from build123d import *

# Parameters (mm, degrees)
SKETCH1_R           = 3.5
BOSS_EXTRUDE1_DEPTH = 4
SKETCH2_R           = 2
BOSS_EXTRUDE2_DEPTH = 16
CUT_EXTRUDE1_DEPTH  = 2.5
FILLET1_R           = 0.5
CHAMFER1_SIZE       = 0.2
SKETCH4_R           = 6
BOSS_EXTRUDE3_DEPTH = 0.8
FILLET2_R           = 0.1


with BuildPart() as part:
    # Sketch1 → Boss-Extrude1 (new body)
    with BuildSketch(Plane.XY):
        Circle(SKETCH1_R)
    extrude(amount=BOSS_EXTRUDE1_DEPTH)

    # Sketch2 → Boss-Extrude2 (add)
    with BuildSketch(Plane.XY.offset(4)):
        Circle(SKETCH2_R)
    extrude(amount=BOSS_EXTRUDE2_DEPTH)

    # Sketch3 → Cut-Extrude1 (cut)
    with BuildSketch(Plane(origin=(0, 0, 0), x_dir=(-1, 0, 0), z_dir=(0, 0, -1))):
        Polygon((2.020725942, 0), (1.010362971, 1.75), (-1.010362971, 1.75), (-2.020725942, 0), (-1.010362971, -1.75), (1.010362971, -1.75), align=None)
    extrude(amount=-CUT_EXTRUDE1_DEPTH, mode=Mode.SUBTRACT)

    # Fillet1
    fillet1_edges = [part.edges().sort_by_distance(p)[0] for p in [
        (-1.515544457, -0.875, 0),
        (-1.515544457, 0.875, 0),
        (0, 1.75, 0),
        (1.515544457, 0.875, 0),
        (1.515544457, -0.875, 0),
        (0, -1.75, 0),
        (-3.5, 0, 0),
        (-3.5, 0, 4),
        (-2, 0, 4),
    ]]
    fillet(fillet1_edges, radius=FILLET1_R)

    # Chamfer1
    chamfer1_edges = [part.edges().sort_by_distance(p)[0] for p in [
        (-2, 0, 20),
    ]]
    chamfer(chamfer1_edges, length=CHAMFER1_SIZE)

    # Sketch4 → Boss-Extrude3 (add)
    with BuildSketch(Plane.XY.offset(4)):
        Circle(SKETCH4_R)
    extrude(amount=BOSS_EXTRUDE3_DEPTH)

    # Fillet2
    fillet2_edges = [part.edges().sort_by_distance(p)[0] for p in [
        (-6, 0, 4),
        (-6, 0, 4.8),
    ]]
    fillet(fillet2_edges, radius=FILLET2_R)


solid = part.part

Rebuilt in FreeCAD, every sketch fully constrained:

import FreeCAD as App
import Part
import Sketcher
Q = App.Units.Quantity


def edges_at(feature, points):
    """Names of the edges that pass closest to the given points."""
    edges = feature.Shape.Edges
    near = lambda p: min(range(len(edges)), key=lambda i: edges[i].distToShape(Part.Vertex(*p))[0])
    return sorted({f"Edge{near(p) + 1}" for p in points})

doc = App.newDocument("Part")
body = doc.addObject("PartDesign::Body", "Body")

sketch1 = doc.addObject("Sketcher::SketchObject", "Sketch")
body.addObject(sketch1)
sketch1.AttachmentSupport = (doc.XY_Plane, [""])
sketch1.MapMode = "FlatFace"
sketch1.addGeometry(Part.Circle(App.Vector(0, 0, 0), App.Vector(0, 0, 1), 3.5), False)
sketch1.addConstraint([
    Sketcher.Constraint("Coincident", 0, 3, -1, 1),
    Sketcher.Constraint("Diameter", 0, 7.0),
])
pad1 = doc.addObject("PartDesign::Pad", "Pad")
body.addObject(pad1)
pad1.Profile = sketch1
pad1.Length = 4

sketch2 = doc.addObject("Sketcher::SketchObject", "Sketch001")
body.addObject(sketch2)
sketch2.AttachmentSupport = (doc.XY_Plane, [""])
sketch2.MapMode = "FlatFace"
sketch2.AttachmentOffset = App.Placement(App.Vector(0, 0, 4), App.Rotation())
sketch2.addGeometry(Part.Circle(App.Vector(0, 0, 0), App.Vector(0, 0, 1), 2), False)
sketch2.addConstraint([
    Sketcher.Constraint("Coincident", 0, 3, -1, 1),
    Sketcher.Constraint("Diameter", 0, 4.0),
])
pad2 = doc.addObject("PartDesign::Pad", "Pad001")
body.addObject(pad2)
pad2.Profile = sketch2
pad2.Length = 16

sketch3 = doc.addObject("Sketcher::SketchObject", "Sketch002")
body.addObject(sketch3)
sketch3.AttachmentSupport = (doc.XY_Plane, [""])
sketch3.MapMode = "FlatFace"
sketch3.addGeometry([
    Part.LineSegment(App.Vector(-2, 0, 0), App.Vector(-1, 1.8, 0)),
    Part.LineSegment(App.Vector(-1, 1.8, 0), App.Vector(1, 1.8, 0)),
    Part.LineSegment(App.Vector(1, 1.8, 0), App.Vector(2, 0, 0)),
    Part.LineSegment(App.Vector(2, 0, 0), App.Vector(1, -1.8, 0)),
    Part.LineSegment(App.Vector(1, -1.8, 0), App.Vector(-1, -1.8, 0)),
    Part.LineSegment(App.Vector(-1, -1.8, 0), App.Vector(-2, 0, 0)),
], False)
sketch3.addConstraint([
    Sketcher.Constraint("Coincident", 0, 2, 1, 1),
    Sketcher.Constraint("Coincident", 1, 2, 2, 1),
    Sketcher.Constraint("Coincident", 2, 2, 3, 1),
    Sketcher.Constraint("Coincident", 3, 2, 4, 1),
    Sketcher.Constraint("Coincident", 4, 2, 5, 1),
    Sketcher.Constraint("Coincident", 5, 2, 0, 1),
    Sketcher.Constraint("Horizontal", 1),
    Sketcher.Constraint("Horizontal", 4),
    Sketcher.Constraint("Symmetric", 0, 2, 3, 2, -1, 1),
    Sketcher.Constraint("Symmetric", 2, 2, 5, 2, -1, 1),
    Sketcher.Constraint("PointOnObject", 2, 2, -1),
    Sketcher.Constraint("Parallel", 2, 5),
    Sketcher.Constraint("Vertical", 1, 2, 3, 2),
    Sketcher.Constraint("Angle", 0, Q("60 deg")),
    Sketcher.Constraint("DistanceY", 3, 2, 1, 2, 3.5),
    Sketcher.Constraint("DistanceX", 1, 1, 1, 2, 2.020726),
])
pocket1 = doc.addObject("PartDesign::Pocket", "Pocket")
body.addObject(pocket1)
pocket1.Profile = sketch3
pocket1.Length = 2.5
pocket1.Reversed = True
doc.recompute()

fillet = doc.addObject("PartDesign::Fillet", "Fillet")
body.addObject(fillet)
fillet.Base = (pocket1, edges_at(pocket1, [
    (-1.516, -0.875, 0),
    (-1.516, 0.875, 0),
    (0, 1.75, 0),
    (1.516, 0.875, 0),
    (1.516, -0.875, 0),
    (0, -1.75, 0),
    (-3.5, 0, 0),
    (-3.5, 0, 4),
    (-2, 0, 4),
]))
fillet.Radius = 0.5
doc.recompute()

chamfer = doc.addObject("PartDesign::Chamfer", "Chamfer")
body.addObject(chamfer)
chamfer.Base = (fillet, edges_at(fillet, [(-2, 0, 20)]))
chamfer.Size = 0.2

sketch4 = doc.addObject("Sketcher::SketchObject", "Sketch003")
body.addObject(sketch4)
sketch4.AttachmentSupport = (doc.XY_Plane, [""])
sketch4.MapMode = "FlatFace"
sketch4.AttachmentOffset = App.Placement(App.Vector(0, 0, 4), App.Rotation())
sketch4.addGeometry(Part.Circle(App.Vector(0, 0, 0), App.Vector(0, 0, 1), 6), False)
sketch4.addConstraint([
    Sketcher.Constraint("Coincident", 0, 3, -1, 1),
    Sketcher.Constraint("Diameter", 0, 12.0),
])
pad3 = doc.addObject("PartDesign::Pad", "Pad002")
body.addObject(pad3)
pad3.Profile = sketch4
pad3.Length = 0.8
doc.recompute()

fillet2 = doc.addObject("PartDesign::Fillet", "Fillet001")
body.addObject(fillet2)
fillet2.Base = (pad3, edges_at(pad3, [(-6, 0, 4), (-6, 0, 4.8)]))
fillet2.Radius = 0.1

doc.recompute()
